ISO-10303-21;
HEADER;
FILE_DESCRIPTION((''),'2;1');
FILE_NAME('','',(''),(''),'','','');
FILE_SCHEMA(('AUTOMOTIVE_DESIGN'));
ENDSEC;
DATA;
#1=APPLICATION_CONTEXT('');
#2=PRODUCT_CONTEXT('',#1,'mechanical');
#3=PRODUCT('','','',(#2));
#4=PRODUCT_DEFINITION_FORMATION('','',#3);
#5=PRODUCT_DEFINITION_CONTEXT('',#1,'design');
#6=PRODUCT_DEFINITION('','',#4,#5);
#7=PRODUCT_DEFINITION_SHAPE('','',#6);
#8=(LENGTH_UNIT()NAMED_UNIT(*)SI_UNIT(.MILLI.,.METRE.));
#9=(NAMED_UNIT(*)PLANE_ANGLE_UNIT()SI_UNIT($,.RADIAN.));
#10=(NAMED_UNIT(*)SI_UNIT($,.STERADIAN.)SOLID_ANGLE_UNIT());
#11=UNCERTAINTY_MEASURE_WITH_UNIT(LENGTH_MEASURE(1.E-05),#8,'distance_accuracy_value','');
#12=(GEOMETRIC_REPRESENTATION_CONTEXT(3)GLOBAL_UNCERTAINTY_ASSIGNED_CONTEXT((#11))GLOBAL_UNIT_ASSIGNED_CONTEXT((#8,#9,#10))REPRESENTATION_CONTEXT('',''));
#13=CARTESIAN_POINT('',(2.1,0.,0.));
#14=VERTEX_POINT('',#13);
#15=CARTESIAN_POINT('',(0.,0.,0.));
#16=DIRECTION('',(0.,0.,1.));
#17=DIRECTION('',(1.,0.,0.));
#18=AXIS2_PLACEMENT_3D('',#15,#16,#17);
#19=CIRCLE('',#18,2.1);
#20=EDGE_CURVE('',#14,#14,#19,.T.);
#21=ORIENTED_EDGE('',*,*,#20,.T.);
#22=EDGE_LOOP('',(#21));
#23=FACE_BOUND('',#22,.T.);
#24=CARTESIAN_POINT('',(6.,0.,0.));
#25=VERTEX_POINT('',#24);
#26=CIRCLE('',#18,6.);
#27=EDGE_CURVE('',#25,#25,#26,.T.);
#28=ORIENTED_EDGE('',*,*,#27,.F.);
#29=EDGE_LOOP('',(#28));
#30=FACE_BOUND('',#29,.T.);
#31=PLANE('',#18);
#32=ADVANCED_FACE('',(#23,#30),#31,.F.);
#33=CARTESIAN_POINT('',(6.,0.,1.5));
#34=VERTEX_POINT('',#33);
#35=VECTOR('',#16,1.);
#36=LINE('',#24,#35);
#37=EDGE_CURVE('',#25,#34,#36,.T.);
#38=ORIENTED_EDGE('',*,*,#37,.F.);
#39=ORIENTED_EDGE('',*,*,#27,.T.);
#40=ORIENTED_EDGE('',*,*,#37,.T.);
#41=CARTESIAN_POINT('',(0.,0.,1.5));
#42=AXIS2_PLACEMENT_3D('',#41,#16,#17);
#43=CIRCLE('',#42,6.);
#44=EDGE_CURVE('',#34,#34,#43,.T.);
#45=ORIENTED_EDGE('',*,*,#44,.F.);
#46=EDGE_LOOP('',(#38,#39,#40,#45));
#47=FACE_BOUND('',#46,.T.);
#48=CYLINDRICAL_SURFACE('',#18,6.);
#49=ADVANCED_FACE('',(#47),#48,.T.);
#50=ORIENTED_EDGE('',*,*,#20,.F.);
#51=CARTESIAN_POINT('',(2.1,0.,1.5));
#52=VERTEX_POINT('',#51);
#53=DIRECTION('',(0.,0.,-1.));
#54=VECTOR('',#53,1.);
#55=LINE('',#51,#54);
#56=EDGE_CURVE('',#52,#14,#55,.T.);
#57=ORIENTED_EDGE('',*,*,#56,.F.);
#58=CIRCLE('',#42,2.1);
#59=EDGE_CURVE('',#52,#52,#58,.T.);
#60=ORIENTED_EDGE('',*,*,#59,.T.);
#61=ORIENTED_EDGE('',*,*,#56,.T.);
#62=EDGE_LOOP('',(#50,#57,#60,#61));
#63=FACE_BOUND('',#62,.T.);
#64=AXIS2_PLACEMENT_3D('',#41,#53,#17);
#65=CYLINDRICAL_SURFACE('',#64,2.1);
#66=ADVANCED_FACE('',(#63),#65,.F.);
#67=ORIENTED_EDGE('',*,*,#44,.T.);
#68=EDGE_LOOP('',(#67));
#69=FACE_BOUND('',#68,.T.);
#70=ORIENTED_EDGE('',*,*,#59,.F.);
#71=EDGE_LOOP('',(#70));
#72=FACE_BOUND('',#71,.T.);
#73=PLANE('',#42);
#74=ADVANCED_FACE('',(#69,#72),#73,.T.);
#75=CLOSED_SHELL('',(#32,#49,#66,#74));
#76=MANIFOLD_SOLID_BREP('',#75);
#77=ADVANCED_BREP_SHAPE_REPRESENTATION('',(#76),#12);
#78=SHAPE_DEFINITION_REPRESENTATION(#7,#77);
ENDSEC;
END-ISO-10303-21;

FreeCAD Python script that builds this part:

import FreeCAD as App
import Part
import Sketcher
from FreeCAD import Vector


def add_polygon(sketch, points):
    """Adds a closed chain of lines whose ends are joined by coincident constraints."""
    first, n = sketch.GeometryCount, len(points)
    for a, b in zip(points, points[1:] + points[:1]):
        sketch.addGeometry(Part.LineSegment(App.Vector(*a, 0), App.Vector(*b, 0)), False)
    for i in range(n):
        sketch.addConstraint(Sketcher.Constraint("Coincident", first + i, 2, first + (i + 1) % n, 1))

doc = App.newDocument("Part")
body = doc.addObject("PartDesign::Body", "Body")

sketch1 = body.newObject("Sketcher::SketchObject", "Sketch")
sketch1.AttachmentSupport = (doc.getObject("XZ_Plane"), [""])
sketch1.MapMode = "FlatFace"
add_polygon(sketch1, [(2.1, 0), (2.1, 1.5), (6, 1.5), (6, 0)])
sketch1.addConstraint([
    Sketcher.Constraint("Vertical", 0),
    Sketcher.Constraint("Horizontal", 1),
    Sketcher.Constraint("Vertical", 2),
    Sketcher.Constraint("Horizontal", 3),
    Sketcher.Constraint("PointOnObject", 2, 2, -1),
    Sketcher.Constraint("DistanceY", 0, 1, 0, 2, 1.5),
    Sketcher.Constraint("DistanceX", 1, 1, 1, 2, 3.9),
    Sketcher.Constraint("DistanceX", -1, 1, 1, 2, 6.0),
])
revolution = body.newObject("PartDesign::Revolution", "Revolution")
revolution.Profile = sketch1
revolution.ReferenceAxis = (sketch1, ["V_Axis"])
revolution.Angle = 360

doc.recompute()
